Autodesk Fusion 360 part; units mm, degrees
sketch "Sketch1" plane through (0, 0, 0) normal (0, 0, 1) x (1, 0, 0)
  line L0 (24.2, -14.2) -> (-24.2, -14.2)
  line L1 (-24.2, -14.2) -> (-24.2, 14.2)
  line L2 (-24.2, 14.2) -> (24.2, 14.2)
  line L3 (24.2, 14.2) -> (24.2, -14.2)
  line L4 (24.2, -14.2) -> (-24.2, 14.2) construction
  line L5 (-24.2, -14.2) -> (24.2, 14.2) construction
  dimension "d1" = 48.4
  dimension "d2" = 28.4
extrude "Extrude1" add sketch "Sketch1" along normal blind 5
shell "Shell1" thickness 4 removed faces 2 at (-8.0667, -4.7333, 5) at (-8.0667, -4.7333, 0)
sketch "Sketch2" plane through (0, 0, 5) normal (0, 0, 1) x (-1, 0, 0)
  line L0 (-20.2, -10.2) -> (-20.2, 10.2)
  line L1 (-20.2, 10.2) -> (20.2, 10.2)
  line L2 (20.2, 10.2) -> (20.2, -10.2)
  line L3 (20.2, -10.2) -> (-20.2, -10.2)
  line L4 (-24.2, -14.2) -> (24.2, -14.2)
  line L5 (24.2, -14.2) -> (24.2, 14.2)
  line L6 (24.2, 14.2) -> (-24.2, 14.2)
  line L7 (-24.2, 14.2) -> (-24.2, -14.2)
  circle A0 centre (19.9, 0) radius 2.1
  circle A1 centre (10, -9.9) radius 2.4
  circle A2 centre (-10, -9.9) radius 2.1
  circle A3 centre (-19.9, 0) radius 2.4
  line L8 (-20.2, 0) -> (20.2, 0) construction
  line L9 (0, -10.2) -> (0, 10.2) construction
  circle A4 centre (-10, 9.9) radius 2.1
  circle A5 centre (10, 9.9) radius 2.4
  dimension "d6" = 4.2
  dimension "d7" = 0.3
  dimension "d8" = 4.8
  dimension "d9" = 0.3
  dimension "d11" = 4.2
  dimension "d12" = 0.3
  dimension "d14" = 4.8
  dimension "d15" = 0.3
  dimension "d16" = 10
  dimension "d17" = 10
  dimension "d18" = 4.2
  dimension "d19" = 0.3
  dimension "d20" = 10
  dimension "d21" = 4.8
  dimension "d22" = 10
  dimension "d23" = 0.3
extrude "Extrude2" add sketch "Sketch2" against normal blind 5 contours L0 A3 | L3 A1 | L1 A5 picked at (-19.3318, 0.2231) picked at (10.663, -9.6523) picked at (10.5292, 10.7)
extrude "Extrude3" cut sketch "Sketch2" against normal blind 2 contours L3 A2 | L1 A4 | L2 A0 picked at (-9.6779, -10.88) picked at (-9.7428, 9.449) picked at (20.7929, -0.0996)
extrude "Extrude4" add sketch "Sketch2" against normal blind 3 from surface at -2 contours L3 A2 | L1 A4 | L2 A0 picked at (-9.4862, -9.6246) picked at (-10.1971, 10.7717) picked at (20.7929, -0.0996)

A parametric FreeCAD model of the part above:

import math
import FreeCAD as App
import Part
import Sketcher

V = App.Vector


def faces_at(feature, points):
    """Names of the faces that lie closest to the given points."""
    faces = feature.Shape.Faces
    near = lambda p: min(range(len(faces)), key=lambda i: faces[i].distToShape(Part.Vertex(*p))[0])
    return sorted({f"Face{near(p) + 1}" for p in points})

doc = App.newDocument("Part")
params = doc.addObject("Spreadsheet::Sheet", "Params")
for row, (alias, value) in enumerate([
    ("sketch1_width", "48.4 mm"),
    ("sketch1_height", "28.4 mm"),
    ("pad1_length", "5 mm"),
    ("thickness_wall", "4 mm"),
    ("sketch2_radius", "2.4 mm"),
    ("pad2_length", "5 mm"),
    ("sketch3_radius", "2.1 mm"),
    ("pocket1_length", "2 mm"),
    ("sketch4_radius", "2.1 mm"),
    ("sketch4_height", "0.3 mm"),
    ("pad3_length", "3 mm"),
], start=1):
    params.set(f"A{row}", alias)
    params.set(f"B{row}", "=" + value)
    params.setAlias(f"B{row}", alias)

body = doc.addObject("PartDesign::Body", "Body")

sketch1 = doc.addObject("Sketcher::SketchObject", "Sketch")
body.addObject(sketch1)
sketch1.AttachmentSupport = (doc.XY_Plane, [""])
sketch1.MapMode = "FlatFace"
sketch1.addGeometry([
    Part.LineSegment(V(-24, -14, 0), V(24, -14, 0)),
    Part.LineSegment(V(24, -14, 0), V(24, 14, 0)),
    Part.LineSegment(V(24, 14, 0), V(-24, 14, 0)),
    Part.LineSegment(V(-24, 14, 0), V(-24, -14, 0)),
], False)
sketch1.addConstraint([
    Sketcher.Constraint("Coincident", 0, 2, 1, 1),
    Sketcher.Constraint("Coincident", 1, 2, 2, 1),
    Sketcher.Constraint("Coincident", 2, 2, 3, 1),
    Sketcher.Constraint("Coincident", 3, 2, 0, 1),
    Sketcher.Constraint("Horizontal", 0),
    Sketcher.Constraint("Vertical", 1),
    Sketcher.Constraint("Horizontal", 2),
    Sketcher.Constraint("Vertical", 3),
    Sketcher.Constraint("Symmetric", 0, 2, 2, 2, -1, 1),
    Sketcher.Constraint("DistanceX", 0, 1, 0, 2, 48.4),
    Sketcher.Constraint("DistanceY", 1, 1, 1, 2, 28.4),
])
sketch1.setExpression("Constraints[9]", "Params.sketch1_width")
sketch1.setExpression("Constraints[10]", "Params.sketch1_height")
pad1 = doc.addObject("PartDesign::Pad", "Pad")
body.addObject(pad1)
pad1.Profile = sketch1
pad1.setExpression("Length", "Params.pad1_length")
doc.recompute()

thickness = doc.addObject("PartDesign::Thickness", "Thickness")
body.addObject(thickness)
thickness.Base = (pad1, faces_at(pad1, [(-8.067, -4.733, 5), (-8.067, -4.733, 0)]))
thickness.setExpression("Value", "Params.thickness_wall")
thickness.Reversed = True
thickness.Join = "Intersection"

sketch2 = doc.addObject("Sketcher::SketchObject", "Sketch001")
body.addObject(sketch2)
sketch2.AttachmentSupport = (doc.XY_Plane, [""])
sketch2.MapMode = "FlatFace"
sketch2.AttachmentOffset = App.Placement(V(0, 0, 5), App.Rotation())
sketch2.addGeometry([
    Part.LineSegment(V(20.2, -2.4, 0), V(20.2, 2.4, 0)),
    Part.ArcOfCircle(Part.Circle(V(19.9, 0, 0), V(0, 0, 1), 2.4), math.radians(83), math.radians(277)),
    Part.ArcOfCircle(Part.Circle(V(-10, 9.9, 0), V(0, 0, 1), 2.4), math.radians(173), math.radians(367)),
    Part.LineSegment(V(-7.6, 10.2, 0), V(-12.4, 10.2, 0)),
    Part.ArcOfCircle(Part.Circle(V(-10, -9.9, 0), V(0, 0, 1), 2.4), math.radians(-173), math.radians(-7)),
    Part.LineSegment(V(-7.6, -10.2, 0), V(-12.4, -10.2, 0)),
], False)
sketch2.addConstraint([
    Sketcher.Constraint("Coincident", 0, 1, 1, 2),
    Sketcher.Constraint("Coincident", 1, 1, 0, 2),
    Sketcher.Constraint("Coincident", 2, 1, 3, 2),
    Sketcher.Constraint("Coincident", 3, 1, 2, 2),
    Sketcher.Constraint("Coincident", 4, 1, 5, 2),
    Sketcher.Constraint("Coincident", 5, 1, 4, 2),
    Sketcher.Constraint("Vertical", 0),
    Sketcher.Constraint("Horizontal", 3),
    Sketcher.Constraint("Horizontal", 5),
    Sketcher.Constraint("Equal", 1, 2),
    Sketcher.Constraint("Equal", 2, 4),
    Sketcher.Constraint("Symmetric", 2, 3, 4, 3, -1),
    Sketcher.Constraint("PointOnObject", 1, 3, -1),
    Sketcher.Constraint("Vertical", 2, 1, 4, 1),
    Sketcher.Constraint("Equal", 5, 0),
    Sketcher.Constraint("Radius", 1, 2.4),
    Sketcher.Constraint("DistanceX", 2, 3, -1, 1, 10.0),
    Sketcher.Constraint("DistanceX", 1, 3, 0, 1, 0.3),
    Sketcher.Constraint("DistanceX", -1, 1, 1, 3, 19.9),
    Sketcher.Constraint("DistanceY", -1, 1, 2, 3, 9.9),
])
sketch2.setExpression("Constraints[15]", "Params.sketch2_radius")
pad2 = doc.addObject("PartDesign::Pad", "Pad001")
body.addObject(pad2)
pad2.Profile = sketch2
pad2.setExpression("Length", "Params.pad2_length")
pad2.Reversed = True

sketch3 = doc.addObject("Sketcher::SketchObject", "Sketch002")
body.addObject(sketch3)
sketch3.AttachmentSupport = (doc.XY_Plane, [""])
sketch3.MapMode = "FlatFace"
sketch3.AttachmentOffset = App.Placement(V(0, 0, 5), App.Rotation())
sketch3.addGeometry([
    Part.LineSegment(V(7.9, 10.2, 0), V(12.1, 10.2, 0)),
    Part.ArcOfCircle(Part.Circle(V(10, 9.9, 0), V(0, 0, 1), 2.1), math.radians(8), math.radians(172)),
    Part.LineSegment(V(7.9, -10.2, 0), V(12.1, -10.2, 0)),
    Part.ArcOfCircle(Part.Circle(V(10, -9.9, 0), V(0, 0, 1), 2.1), math.radians(-8), math.radians(188)),
    Part.LineSegment(V(-20.2, -2.1, 0), V(-20.2, 2.1, 0)),
    Part.ArcOfCircle(Part.Circle(V(-19.9, 0, 0), V(0, 0, 1), 2.1), math.radians(98), math.radians(262)),
], False)
sketch3.addConstraint([
    Sketcher.Constraint("Coincident", 0, 1, 1, 2),
    Sketcher.Constraint("Coincident", 1, 1, 0, 2),
    Sketcher.Constraint("Coincident", 2, 1, 3, 2),
    Sketcher.Constraint("Coincident", 3, 1, 2, 2),
    Sketcher.Constraint("Coincident", 4, 1, 5, 2),
    Sketcher.Constraint("Coincident", 5, 1, 4, 2),
    Sketcher.Constraint("Horizontal", 0),
    Sketcher.Constraint("Horizontal", 2),
    Sketcher.Constraint("Vertical", 4),
    Sketcher.Constraint("Equal", 1, 3),
    Sketcher.Constraint("Equal", 3, 5),
    Sketcher.Constraint("Symmetric", 1, 3, 3, 3, -1),
    Sketcher.Constraint("PointOnObject", 5, 3, -1),
    Sketcher.Constraint("Vertical", 0, 1, 2, 1),
    Sketcher.Constraint("Equal", 2, 4),
    Sketcher.Constraint("Radius", 1, 2.1),
    Sketcher.Constraint("DistanceX", -1, 1, 1, 3, 10.0),
    Sketcher.Constraint("DistanceY", 1, 3, 0, 1, 0.3),
    Sketcher.Constraint("DistanceY", -1, 1, 1, 3, 9.9),
    Sketcher.Constraint("DistanceX", 5, 3, -1, 1, 19.9),
])
sketch3.setExpression("Constraints[15]", "Params.sketch3_radius")
pocket1 = doc.addObject("PartDesign::Pocket", "Pocket")
body.addObject(pocket1)
pocket1.Profile = sketch3
pocket1.setExpression("Length", "Params.pocket1_length")

sketch4 = doc.addObject("Sketcher::SketchObject", "Sketch003")
body.addObject(sketch4)
sketch4.AttachmentSupport = (doc.XY_Plane, [""])
sketch4.MapMode = "FlatFace"
sketch4.AttachmentOffset = App.Placement(V(0, 0, 3), App.Rotation())
sketch4.addGeometry([
    Part.ArcOfCircle(Part.Circle(V(10, 9.9, 0), V(0, 0, 1), 2.1), math.radians(172), math.radians(368)),
    Part.LineSegment(V(12.1, 10.2, 0), V(7.9, 10.2, 0)),
    Part.ArcOfCircle(Part.Circle(V(10, -9.9, 0), V(0, 0, 1), 2.1), math.radians(-172), math.radians(-8)),
    Part.LineSegment(V(12.1, -10.2, 0), V(7.9, -10.2, 0)),
    Part.LineSegment(V(-20.2, -2.1, 0), V(-20.2, 2.1, 0)),
    Part.ArcOfCircle(Part.Circle(V(-19.9, 0, 0), V(0, 0, 1), 2.1), math.radians(98), math.radians(262)),
], False)
sketch4.addConstraint([
    Sketcher.Constraint("Coincident", 0, 1, 1, 2),
    Sketcher.Constraint("Coincident", 1, 1, 0, 2),
    Sketcher.Constraint("Coincident", 2, 1, 3, 2),
    Sketcher.Constraint("Coincident", 3, 1, 2, 2),
    Sketcher.Constraint("Coincident", 4, 1, 5, 2),
    Sketcher.Constraint("Coincident", 5, 1, 4, 2),
    Sketcher.Constraint("Horizontal", 1),
    Sketcher.Constraint("Horizontal", 3),
    Sketcher.Constraint("Vertical", 4),
    Sketcher.Constraint("Equal", 0, 2),
    Sketcher.Constraint("Equal", 2, 5),
    Sketcher.Constraint("Symmetric", 0, 3, 2, 3, -1),
    Sketcher.Constraint("PointOnObject", 5, 3, -1),
    Sketcher.Constraint("Vertical", 0, 1, 2, 1),
    Sketcher.Constraint("Equal", 3, 4),
    Sketcher.Constraint("Radius", 0, 2.1),
    Sketcher.Constraint("DistanceX", -1, 1, 0, 3, 10.0),
    Sketcher.Constraint("DistanceY", 0, 3, 0, 1, 0.3),
    Sketcher.Constraint("DistanceY", -1, 1, 0, 3, 9.9),
    Sketcher.Constraint("DistanceX", 5, 3, -1, 1, 19.9),
])
sketch4.setExpression("Constraints[15]", "Params.sketch4_radius")
sketch4.setExpression("Constraints[17]", "Params.sketch4_height")
pad3 = doc.addObject("PartDesign::Pad", "Pad002")
body.addObject(pad3)
pad3.Profile = sketch4
pad3.setExpression("Length", "Params.pad3_length")
pad3.Reversed = True

doc.recompute()
